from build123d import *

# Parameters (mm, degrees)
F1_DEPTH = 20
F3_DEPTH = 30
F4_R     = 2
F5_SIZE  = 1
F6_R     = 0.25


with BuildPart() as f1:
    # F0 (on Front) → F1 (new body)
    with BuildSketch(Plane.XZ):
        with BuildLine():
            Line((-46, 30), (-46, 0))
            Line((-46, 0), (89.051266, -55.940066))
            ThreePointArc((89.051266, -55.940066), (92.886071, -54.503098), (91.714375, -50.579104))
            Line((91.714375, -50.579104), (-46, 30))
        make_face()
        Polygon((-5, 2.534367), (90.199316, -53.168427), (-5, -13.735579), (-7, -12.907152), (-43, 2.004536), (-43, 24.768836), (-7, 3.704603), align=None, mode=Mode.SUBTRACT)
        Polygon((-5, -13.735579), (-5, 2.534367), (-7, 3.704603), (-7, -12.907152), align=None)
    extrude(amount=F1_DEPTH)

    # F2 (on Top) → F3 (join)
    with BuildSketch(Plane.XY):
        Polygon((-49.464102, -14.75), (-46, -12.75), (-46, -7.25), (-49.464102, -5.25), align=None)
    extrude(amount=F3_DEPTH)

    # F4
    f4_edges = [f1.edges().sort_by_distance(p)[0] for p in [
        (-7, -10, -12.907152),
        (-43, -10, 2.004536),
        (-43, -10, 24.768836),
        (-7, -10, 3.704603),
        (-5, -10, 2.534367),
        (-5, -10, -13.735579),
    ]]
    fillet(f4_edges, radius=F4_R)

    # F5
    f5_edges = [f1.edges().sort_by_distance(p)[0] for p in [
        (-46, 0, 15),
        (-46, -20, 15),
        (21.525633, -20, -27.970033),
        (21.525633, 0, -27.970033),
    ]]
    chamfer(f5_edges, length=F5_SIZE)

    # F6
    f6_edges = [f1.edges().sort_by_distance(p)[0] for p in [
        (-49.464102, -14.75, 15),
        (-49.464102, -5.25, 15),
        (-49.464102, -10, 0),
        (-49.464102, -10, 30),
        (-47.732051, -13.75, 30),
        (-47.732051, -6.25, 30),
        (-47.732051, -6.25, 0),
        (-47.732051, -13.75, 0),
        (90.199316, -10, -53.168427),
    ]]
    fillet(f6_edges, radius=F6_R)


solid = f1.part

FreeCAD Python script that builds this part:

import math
import FreeCAD as App
import Part
import Sketcher
Q = App.Units.Quantity


def edges_at(feature, points):
    """Names of the edges that pass closest to the given points."""
    edges = feature.Shape.Edges
    near = lambda p: min(range(len(edges)), key=lambda i: edges[i].distToShape(Part.Vertex(*p))[0])
    return sorted({f"Edge{near(p) + 1}" for p in points})

doc = App.newDocument("Part")
body = doc.addObject("PartDesign::Body", "Body")

sketch1 = body.newObject("Sketcher::SketchObject", "Sketch")
sketch1.AttachmentSupport = (doc.getObject("XZ_Plane"), [""])
sketch1.MapMode = "FlatFace"
sketch1.addGeometry([
    Part.LineSegment(App.Vector(-46, 30, 0), App.Vector(-46, 0, 0)),
    Part.LineSegment(App.Vector(-46, 0, 0), App.Vector(89.051266, -55.940066, 0)),
    Part.ArcOfCircle(Part.Circle(App.Vector(90.199316, -53.168427, 0), App.Vector(0, 0, 1), 3), math.radians(-112.49999), math.radians(59.667336)),
    Part.LineSegment(App.Vector(91.714375, -50.579104, 0), App.Vector(-46, 30, 0)),
    Part.LineSegment(App.Vector(-43, 24.768836, 0), App.Vector(-7, 3.704603, 0)),
    Part.LineSegment(App.Vector(-7, 3.704603, 0), App.Vector(-7, -12.907152, 0)),
    Part.LineSegment(App.Vector(-7, -12.907152, 0), App.Vector(-43, 2.004536, 0)),
    Part.LineSegment(App.Vector(-43, 2.004536, 0), App.Vector(-43, 24.768836, 0)),
    Part.LineSegment(App.Vector(90.199316, -53.168427, 0), App.Vector(-5, -13.735579, 0)),
    Part.LineSegment(App.Vector(-5, -13.735579, 0), App.Vector(-5, 2.534367, 0)),
    Part.LineSegment(App.Vector(-5, 2.534367, 0), App.Vector(90.199316, -53.168427, 0)),
], False)
sketch1.addConstraint([
    Sketcher.Constraint("Coincident", 0, 2, 1, 1),
    Sketcher.Constraint("Tangent", 1, 2, 2, 1),
    Sketcher.Constraint("Tangent", 2, 2, 3, 1),
    Sketcher.Constraint("Coincident", 3, 2, 0, 1),
    Sketcher.Constraint("Coincident", 4, 2, 5, 1),
    Sketcher.Constraint("Coincident", 5, 2, 6, 1),
    Sketcher.Constraint("Coincident", 6, 2, 7, 1),
    Sketcher.Constraint("Coincident", 7, 2, 4, 1),
    Sketcher.Constraint("Coincident", 8, 2, 9, 1),
    Sketcher.Constraint("Coincident", 9, 2, 10, 1),
    Sketcher.Constraint("Coincident", 10, 2, 8, 1),
    Sketcher.Constraint("Vertical", 0),
    Sketcher.Constraint("Vertical", 5),
    Sketcher.Constraint("Vertical", 7),
    Sketcher.Constraint("Vertical", 9),
    Sketcher.Constraint("Coincident", 10, 2, 2, 3),
    Sketcher.Constraint("PointOnObject", 0, 2, -1),
    Sketcher.Constraint("Parallel", 3, 4),
    Sketcher.Constraint("Parallel", 1, 6),
    Sketcher.Constraint("Parallel", 6, 8),
    Sketcher.Constraint("Parallel", 4, 10),
    Sketcher.Constraint("Radius", 2, Q("3 mm")),
    Sketcher.Constraint("DistanceY", 0, 2, 0, 1, Q("30 mm")),
    Sketcher.Constraint("DistanceX", 0, 2, -1, 1, Q("46 mm")),
    Sketcher.Constraint("DistanceX", 4, 2, -1, 1, Q("7 mm")),
    Sketcher.Constraint("DistanceX", 6, 2, -1, 1, Q("43 mm")),
    Sketcher.Constraint("DistanceX", 8, 2, -1, 1, Q("5 mm")),
    Sketcher.Constraint("Angle", 1, Q("-22.5 deg")),
    Sketcher.Constraint("DistanceY", 7, 1, 7, 2, Q("22.7643 mm")),
    Sketcher.Constraint("Distance", 3, Q("159.556388 mm")),
    Sketcher.Constraint("DistanceY", 2, 3, 4, 2, Q("56.87303 mm")),
])
pad1 = body.newObject("PartDesign::Pad", "Pad")
pad1.Profile = sketch1
pad1.Length = 20

sketch2 = body.newObject("Sketcher::SketchObject", "Sketch001")
sketch2.AttachmentSupport = (doc.getObject("XY_Plane"), [""])
sketch2.MapMode = "FlatFace"
sketch2.addGeometry([
    Part.LineSegment(App.Vector(-49.464102, -14.75, 0), App.Vector(-46, -12.75, 0)),
    Part.LineSegment(App.Vector(-46, -12.75, 0), App.Vector(-46, -7.25, 0)),
    Part.LineSegment(App.Vector(-46, -7.25, 0), App.Vector(-49.464102, -5.25, 0)),
    Part.LineSegment(App.Vector(-49.464102, -5.25, 0), App.Vector(-49.464102, -14.75, 0)),
], False)
sketch2.addConstraint([
    Sketcher.Constraint("Coincident", 0, 2, 1, 1),
    Sketcher.Constraint("Coincident", 1, 2, 2, 1),
    Sketcher.Constraint("Coincident", 2, 2, 3, 1),
    Sketcher.Constraint("Coincident", 3, 2, 0, 1),
    Sketcher.Constraint("Vertical", 1),
    Sketcher.Constraint("Vertical", 3),
    Sketcher.Constraint("Equal", 0, 2),
    Sketcher.Constraint("Angle", 0, Q("29.999997 deg")),
    Sketcher.Constraint("Distance", 0, Q("4 mm")),
    Sketcher.Constraint("DistanceY", 1, 1, 1, 2, Q("5.5 mm")),
    Sketcher.Constraint("DistanceX", 0, 2, -1, 1, Q("46 mm")),
    Sketcher.Constraint("DistanceY", 0, 2, -1, 1, Q("12.75 mm")),
])
pad2 = body.newObject("PartDesign::Pad", "Pad001")
pad2.Profile = sketch2
pad2.Length = 30
doc.recompute()

fillet = body.newObject("PartDesign::Fillet", "Fillet")
fillet.Base = (pad2, edges_at(pad2, [
    (-7, -10, -12.907),
    (-43, -10, 2.005),
    (-43, -10, 24.769),
    (-7, -10, 3.705),
    (-5, -10, 2.534),
    (-5, -10, -13.736),
]))
fillet.Radius = 2
doc.recompute()

chamfer = body.newObject("PartDesign::Chamfer", "Chamfer")
chamfer.Base = (fillet, edges_at(fillet, [
    (-46, 0, 15),
    (-46, -20, 15),
    (21.526, -20, -27.97),
    (21.526, 0, -27.97),
]))
chamfer.Size = 1
doc.recompute()

fillet2 = body.newObject("PartDesign::Fillet", "Fillet001")
fillet2.Base = (chamfer, edges_at(chamfer, [
    (-49.464, -14.75, 15),
    (-49.464, -5.25, 15),
    (-49.464, -10, 0),
    (-49.464, -10, 30),
    (-47.732, -13.75, 30),
    (-47.732, -6.25, 30),
    (-47.732, -6.25, 0),
    (-47.732, -13.75, 0),
    (90.199, -10, -53.168),
]))
fillet2.Radius = 0.25

doc.recompute()
